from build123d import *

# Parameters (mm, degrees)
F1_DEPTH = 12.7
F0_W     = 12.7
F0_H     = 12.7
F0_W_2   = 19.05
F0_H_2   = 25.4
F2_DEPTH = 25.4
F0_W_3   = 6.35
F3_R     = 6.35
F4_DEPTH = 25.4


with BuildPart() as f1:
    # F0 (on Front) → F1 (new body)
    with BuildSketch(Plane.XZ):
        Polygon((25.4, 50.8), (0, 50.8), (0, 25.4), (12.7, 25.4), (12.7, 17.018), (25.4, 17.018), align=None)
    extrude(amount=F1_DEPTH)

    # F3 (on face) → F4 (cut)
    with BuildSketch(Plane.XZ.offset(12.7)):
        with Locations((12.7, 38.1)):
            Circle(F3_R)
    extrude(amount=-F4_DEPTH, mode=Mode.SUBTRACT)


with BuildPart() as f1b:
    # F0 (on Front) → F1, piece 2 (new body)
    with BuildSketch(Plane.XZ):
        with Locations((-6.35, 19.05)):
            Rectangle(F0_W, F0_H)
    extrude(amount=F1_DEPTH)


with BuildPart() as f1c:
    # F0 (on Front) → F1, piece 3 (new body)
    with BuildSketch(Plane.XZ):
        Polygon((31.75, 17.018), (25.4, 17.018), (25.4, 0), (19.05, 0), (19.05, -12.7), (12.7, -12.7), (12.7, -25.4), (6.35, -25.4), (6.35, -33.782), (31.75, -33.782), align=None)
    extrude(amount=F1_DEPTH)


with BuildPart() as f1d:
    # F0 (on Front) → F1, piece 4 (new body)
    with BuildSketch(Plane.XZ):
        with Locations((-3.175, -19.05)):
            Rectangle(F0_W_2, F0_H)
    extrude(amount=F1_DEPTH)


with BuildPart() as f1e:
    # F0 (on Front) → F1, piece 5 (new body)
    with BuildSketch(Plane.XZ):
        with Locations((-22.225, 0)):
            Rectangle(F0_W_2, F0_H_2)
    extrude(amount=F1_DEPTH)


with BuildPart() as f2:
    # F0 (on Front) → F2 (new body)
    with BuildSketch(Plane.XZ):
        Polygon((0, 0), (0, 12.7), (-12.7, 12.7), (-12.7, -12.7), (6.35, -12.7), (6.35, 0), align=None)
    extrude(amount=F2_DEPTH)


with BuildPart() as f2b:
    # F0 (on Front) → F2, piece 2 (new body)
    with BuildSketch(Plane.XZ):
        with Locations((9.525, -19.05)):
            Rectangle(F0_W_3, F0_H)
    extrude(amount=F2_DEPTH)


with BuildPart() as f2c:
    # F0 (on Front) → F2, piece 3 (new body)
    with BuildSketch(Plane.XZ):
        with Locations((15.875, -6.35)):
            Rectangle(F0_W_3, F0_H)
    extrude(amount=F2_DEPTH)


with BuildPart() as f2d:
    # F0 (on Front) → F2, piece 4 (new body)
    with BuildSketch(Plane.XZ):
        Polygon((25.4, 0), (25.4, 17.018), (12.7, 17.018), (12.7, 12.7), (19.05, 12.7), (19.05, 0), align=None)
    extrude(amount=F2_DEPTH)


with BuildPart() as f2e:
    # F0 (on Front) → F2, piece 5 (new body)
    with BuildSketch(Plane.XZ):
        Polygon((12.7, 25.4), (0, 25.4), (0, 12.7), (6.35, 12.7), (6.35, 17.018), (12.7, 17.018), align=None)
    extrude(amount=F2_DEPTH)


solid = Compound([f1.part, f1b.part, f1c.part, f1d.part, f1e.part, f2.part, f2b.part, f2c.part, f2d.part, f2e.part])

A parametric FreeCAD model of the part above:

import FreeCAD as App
import Part
import Sketcher

V = App.Vector
Q = App.Units.Quantity


def add_polygon(sketch, points):
    """Adds a closed chain of lines whose ends are joined by coincident constraints."""
    first, n = sketch.GeometryCount, len(points)
    for a, b in zip(points, points[1:] + points[:1]):
        sketch.addGeometry(Part.LineSegment(App.Vector(*a, 0), App.Vector(*b, 0)), False)
    for i in range(n):
        sketch.addConstraint(Sketcher.Constraint("Coincident", first + i, 2, first + (i + 1) % n, 1))

doc = App.newDocument("Part")
body = doc.addObject("PartDesign::Body", "Body")

# Sketch on XZ plane
sketch1 = body.newObject("Sketcher::SketchObject", "Sketch")
sketch1.AttachmentSupport = (doc.getObject("XZ_Plane"), [""])
sketch1.MapMode = "FlatFace"
add_polygon(sketch1, [(25, 51), (0, 51), (0, 25), (13, 25), (13, 17), (25, 17)])  # lines 0-5
sketch1.addConstraint(Sketcher.Constraint("Horizontal", 0))
sketch1.addConstraint(Sketcher.Constraint("Vertical", 1))
sketch1.addConstraint(Sketcher.Constraint("Horizontal", 2))
sketch1.addConstraint(Sketcher.Constraint("Vertical", 3))
sketch1.addConstraint(Sketcher.Constraint("Horizontal", 4))
sketch1.addConstraint(Sketcher.Constraint("Vertical", 5))
sketch1.addConstraint(Sketcher.Constraint("PointOnObject", 0, 2, -2))
sketch1.addConstraint(Sketcher.Constraint("Equal", 2, 4))
sketch1.addConstraint(Sketcher.Constraint("Equal", 0, 1))
sketch1.addConstraint(Sketcher.Constraint("DistanceX", 0, 2, 0, 1, Q("1 in")))
sketch1.addConstraint(Sketcher.Constraint("DistanceY", -1, 1, 0, 2, Q("2 in")))
sketch1.addConstraint(Sketcher.Constraint("DistanceY", 3, 2, 3, 1, Q("0.33 in")))
pad1 = body.newObject("PartDesign::Pad", "Pad")
pad1.Profile = sketch1
pad1.Length = Q("0.5 in")

# Sketch on XZ plane
sketch2 = body.newObject("Sketcher::SketchObject", "Sketch001")
sketch2.AttachmentSupport = (doc.getObject("XZ_Plane"), [""])
sketch2.MapMode = "FlatFace"
sketch2.AttachmentOffset = App.Placement(V(0, 0, 0.5 * 25.4), App.Rotation())
sketch2.addGeometry(Part.Circle(V(13, 38, 0), V(0, 0, 1), 6), False)
sketch2.addConstraint(Sketcher.Constraint("Diameter", 0, Q("0.5 in")))
sketch2.addConstraint(Sketcher.Constraint("DistanceX", -1, 1, 0, 3, Q("0.5 in")))
sketch2.addConstraint(Sketcher.Constraint("DistanceY", -1, 1, 0, 3, Q("1.5 in")))
pocket1 = body.newObject("PartDesign::Pocket", "Pocket")
pocket1.Profile = sketch2
pocket1.Length = Q("1 in")
body2 = doc.addObject("PartDesign::Body", "Body001")

# Sketch on XZ plane
sketch3 = body2.newObject("Sketcher::SketchObject", "Sketch002")
sketch3.AttachmentSupport = (doc.getObject("XZ_Plane001"), [""])
sketch3.MapMode = "FlatFace"
add_polygon(sketch3, [(-13, 25), (-13, 13), (0, 13), (0, 25)])  # lines 0-3
sketch3.addConstraint(Sketcher.Constraint("Vertical", 0))
sketch3.addConstraint(Sketcher.Constraint("Horizontal", 1))
sketch3.addConstraint(Sketcher.Constraint("Vertical", 2))
sketch3.addConstraint(Sketcher.Constraint("Horizontal", 3))
sketch3.addConstraint(Sketcher.Constraint("PointOnObject", 1, 2, -2))
sketch3.addConstraint(Sketcher.Constraint("Equal", 3, 0))
sketch3.addConstraint(Sketcher.Constraint("DistanceX", 1, 1, 1, 2, Q("0.5 in")))
sketch3.addConstraint(Sketcher.Constraint("DistanceY", -1, 1, 2, 2, Q("1 in")))
pad2 = body2.newObject("PartDesign::Pad", "Pad001")
pad2.Profile = sketch3
pad2.Length = Q("0.5 in")
body3 = doc.addObject("PartDesign::Body", "Body002")

# Sketch on XZ plane
sketch4 = body3.newObject("Sketcher::SketchObject", "Sketch003")
sketch4.AttachmentSupport = (doc.getObject("XZ_Plane002"), [""])
sketch4.MapMode = "FlatFace"
add_polygon(sketch4, [(32, 17), (25, 17), (25, 0), (19, 0), (19, -13), (13, -13), (13, -25), (6, -25), (6, -34), (32, -34)])  # lines 0-9
sketch4.addConstraint(Sketcher.Constraint("Horizontal", 0))
sketch4.addConstraint(Sketcher.Constraint("Vertical", 1))
sketch4.addConstraint(Sketcher.Constraint("Horizontal", 2))
sketch4.addConstraint(Sketcher.Constraint("Vertical", 3))
sketch4.addConstraint(Sketcher.Constraint("Horizontal", 4))
sketch4.addConstraint(Sketcher.Constraint("Vertical", 5))
sketch4.addConstraint(Sketcher.Constraint("Horizontal", 6))
sketch4.addConstraint(Sketcher.Constraint("Vertical", 7))
sketch4.addConstraint(Sketcher.Constraint("Horizontal", 8))
sketch4.addConstraint(Sketcher.Constraint("Vertical", 9))
sketch4.addConstraint(Sketcher.Constraint("PointOnObject", 1, 2, -1))
sketch4.addConstraint(Sketcher.Constraint("Equal", 0, 2))
sketch4.addConstraint(Sketcher.Constraint("Equal", 2, 4))
sketch4.addConstraint(Sketcher.Constraint("Equal", 4, 6))
sketch4.addConstraint(Sketcher.Constraint("Equal", 3, 5))
sketch4.addConstraint(Sketcher.Constraint("DistanceX", 8, 1, 8, 2, Q("1 in")))
sketch4.addConstraint(Sketcher.Constraint("DistanceY", 9, 1, 9, 2, Q("2 in")))
sketch4.addConstraint(Sketcher.Constraint("DistanceY", 3, 2, 3, 1, Q("0.5 in")))
sketch4.addConstraint(Sketcher.Constraint("DistanceX", -1, 1, 0, 2, Q("1 in")))
sketch4.addConstraint(Sketcher.Constraint("DistanceY", 1, 2, 1, 1, Q("0.67 in")))
pad3 = body3.newObject("PartDesign::Pad", "Pad002")
pad3.Profile = sketch4
pad3.Length = Q("0.5 in")
body4 = doc.addObject("PartDesign::Body", "Body003")

# Sketch on XZ plane
sketch5 = body4.newObject("Sketcher::SketchObject", "Sketch004")
sketch5.AttachmentSupport = (doc.getObject("XZ_Plane003"), [""])
sketch5.MapMode = "FlatFace"
add_polygon(sketch5, [(-13, -13), (-13, -25), (6, -25), (6, -13)])  # lines 0-3
sketch5.addConstraint(Sketcher.Constraint("Vertical", 0))
sketch5.addConstraint(Sketcher.Constraint("Horizontal", 1))
sketch5.addConstraint(Sketcher.Constraint("Vertical", 2))
sketch5.addConstraint(Sketcher.Constraint("Horizontal", 3))
sketch5.addConstraint(Sketcher.Constraint("DistanceY", 0, 2, 0, 1, Q("0.5 in")))
sketch5.addConstraint(Sketcher.Constraint("DistanceY", 0, 2, -1, 1, Q("1 in")))
sketch5.addConstraint(Sketcher.Constraint("DistanceX", 1, 1, 1, 2, Q("0.75 in")))
sketch5.addConstraint(Sketcher.Constraint("DistanceX", 0, 2, -1, 1, Q("0.5 in")))
pad4 = body4.newObject("PartDesign::Pad", "Pad003")
pad4.Profile = sketch5
pad4.Length = Q("0.5 in")
body5 = doc.addObject("PartDesign::Body", "Body004")

# Sketch on XZ plane
sketch6 = body5.newObject("Sketcher::SketchObject", "Sketch005")
sketch6.AttachmentSupport = (doc.getObject("XZ_Plane004"), [""])
sketch6.MapMode = "FlatFace"
add_polygon(sketch6, [(-32, 13), (-32, -13), (-13, -13), (-13, 13)])  # lines 0-3
sketch6.addConstraint(Sketcher.Constraint("Vertical", 0))
sketch6.addConstraint(Sketcher.Constraint("Horizontal", 1))
sketch6.addConstraint(Sketcher.Constraint("Vertical", 2))
sketch6.addConstraint(Sketcher.Constraint("Horizontal", 3))
sketch6.addConstraint(Sketcher.Constraint("DistanceY", 0, 2, 0, 1, Q("1 in")))
sketch6.addConstraint(Sketcher.Constraint("DistanceX", 1, 1, 1, 2, Q("0.75 in")))
sketch6.addConstraint(Sketcher.Constraint("DistanceY", 0, 2, -1, 1, Q("0.5 in")))
sketch6.addConstraint(Sketcher.Constraint("DistanceX", 1, 2, -1, 1, Q("0.5 in")))
pad5 = body5.newObject("PartDesign::Pad", "Pad004")
pad5.Profile = sketch6
pad5.Length = Q("0.5 in")
body6 = doc.addObject("PartDesign::Body", "Body005")

# Sketch on XZ plane
sketch7 = body6.newObject("Sketcher::SketchObject", "Sketch006")
sketch7.AttachmentSupport = (doc.getObject("XZ_Plane005"), [""])
sketch7.MapMode = "FlatFace"
add_polygon(sketch7, [(0, 0), (0, 13), (-13, 13), (-13, -13), (6, -13), (6, 0)])  # lines 0-5
sketch7.addConstraint(Sketcher.Constraint("Vertical", 0))
sketch7.addConstraint(Sketcher.Constraint("Horizontal", 1))
sketch7.addConstraint(Sketcher.Constraint("Vertical", 2))
sketch7.addConstraint(Sketcher.Constraint("Horizontal", 3))
sketch7.addConstraint(Sketcher.Constraint("Vertical", 4))
sketch7.addConstraint(Sketcher.Constraint("Horizontal", 5))
sketch7.addConstraint(Sketcher.Constraint("Coincident", 5, 2, -1, 1))
sketch7.addConstraint(Sketcher.Constraint("Equal", 1, 0))
sketch7.addConstraint(Sketcher.Constraint("Equal", 0, 4))
sketch7.addConstraint(Sketcher.Constraint("DistanceY", 2, 2, 2, 1, Q("1 in")))
sketch7.addConstraint(Sketcher.Constraint("DistanceX", 3, 1, 3, 2, Q("0.75 in")))
pad6 = body6.newObject("PartDesign::Pad", "Pad005")
pad6.Profile = sketch7
pad6.Length = Q("1 in")
body7 = doc.addObject("PartDesign::Body", "Body006")

# Sketch on XZ plane
sketch8 = body7.newObject("Sketcher::SketchObject", "Sketch007")
sketch8.AttachmentSupport = (doc.getObject("XZ_Plane006"), [""])
sketch8.MapMode = "FlatFace"
add_polygon(sketch8, [(6, -13), (6, -25), (13, -25), (13, -13)])  # lines 0-3
sketch8.addConstraint(Sketcher.Constraint("Vertical", 0))
sketch8.addConstraint(Sketcher.Constraint("Horizontal", 1))
sketch8.addConstraint(Sketcher.Constraint("Vertical", 2))
sketch8.addConstraint(Sketcher.Constraint("Horizontal", 3))
sketch8.addConstraint(Sketcher.Constraint("DistanceY", 0, 2, 0, 1, Q("0.5 in")))
sketch8.addConstraint(Sketcher.Constraint("DistanceY", 0, 2, -1, 1, Q("1 in")))
sketch8.addConstraint(Sketcher.Constraint("DistanceX", 1, 1, 1, 2, Q("0.25 in")))
sketch8.addConstraint(Sketcher.Constraint("DistanceX", -1, 1, 1, 2, Q("0.5 in")))
pad7 = body7.newObject("PartDesign::Pad", "Pad006")
pad7.Profile = sketch8
pad7.Length = Q("1 in")
body8 = doc.addObject("PartDesign::Body", "Body007")

# Sketch on XZ plane
sketch9 = body8.newObject("Sketcher::SketchObject", "Sketch008")
sketch9.AttachmentSupport = (doc.getObject("XZ_Plane007"), [""])
sketch9.MapMode = "FlatFace"
add_polygon(sketch9, [(13, 0), (13, -13), (19, -13), (19, 0)])  # lines 0-3
sketch9.addConstraint(Sketcher.Constraint("Vertical", 0))
sketch9.addConstraint(Sketcher.Constraint("Horizontal", 1))
sketch9.addConstraint(Sketcher.Constraint("Vertical", 2))
sketch9.addConstraint(Sketcher.Constraint("Horizontal", 3))
sketch9.addConstraint(Sketcher.Constraint("PointOnObject", 2, 2, -1))
sketch9.addConstraint(Sketcher.Constraint("DistanceY", 0, 2, 0, 1, Q("0.5 in")))
sketch9.addConstraint(Sketcher.Constraint("DistanceX", 1, 1, 1, 2, Q("0.25 in")))
sketch9.addConstraint(Sketcher.Constraint("DistanceX", -1, 1, 0, 2, Q("0.5 in")))
pad8 = body8.newObject("PartDesign::Pad", "Pad007")
pad8.Profile = sketch9
pad8.Length = Q("1 in")
body9 = doc.addObject("PartDesign::Body", "Body008")

# Sketch on XZ plane
sketch10 = body9.newObject("Sketcher::SketchObject", "Sketch009")
sketch10.AttachmentSupport = (doc.getObject("XZ_Plane008"), [""])
sketch10.MapMode = "FlatFace"
add_polygon(sketch10, [(25.4, 0), (25.4, 17), (12.7, 17), (12.7, 12.7), (19.1, 12.7), (19.1, 0)])  # lines 0-5
sketch10.addConstraint(Sketcher.Constraint("Vertical", 0))
sketch10.addConstraint(Sketcher.Constraint("Horizontal", 1))
sketch10.addConstraint(Sketcher.Constraint("Vertical", 2))
sketch10.addConstraint(Sketcher.Constraint("Horizontal", 3))
sketch10.addConstraint(Sketcher.Constraint("Vertical", 4))
sketch10.addConstraint(Sketcher.Constraint("Horizontal", 5))
sketch10.addConstraint(Sketcher.Constraint("PointOnObject", 4, 2, -1))
sketch10.addConstraint(Sketcher.Constraint("Equal", 3, 5))
sketch10.addConstraint(Sketcher.Constraint("Equal", 1, 4))
sketch10.addConstraint(Sketcher.Constraint("DistanceX", 1, 2, 1, 1, Q("0.5 in")))
sketch10.addConstraint(Sketcher.Constraint("DistanceX", -1, 1, 0, 2, Q("1 in")))
sketch10.addConstraint(Sketcher.Constraint("DistanceY", 0, 1, 0, 2, Q("0.67 in")))
pad9 = body9.newObject("PartDesign::Pad", "Pad008")
pad9.Profile = sketch10
pad9.Length = Q("1 in")
body10 = doc.addObject("PartDesign::Body", "Body009")

# Sketch on XZ plane
sketch11 = body10.newObject("Sketcher::SketchObject", "Sketch010")
sketch11.AttachmentSupport = (doc.getObject("XZ_Plane009"), [""])
sketch11.MapMode = "FlatFace"
add_polygon(sketch11, [(12.7, 25.4), (0, 25.4), (0, 12.7), (6.3, 12.7), (6.3, 17), (12.7, 17)])  # lines 0-5
sketch11.addConstraint(Sketcher.Constraint("Horizontal", 0))
sketch11.addConstraint(Sketcher.Constraint("Vertical", 1))
sketch11.addConstraint(Sketcher.Constraint("Horizontal", 2))
sketch11.addConstraint(Sketcher.Constraint("Vertical", 3))
sketch11.addConstraint(Sketcher.Constraint("Horizontal", 4))
sketch11.addConstraint(Sketcher.Constraint("Vertical", 5))
sketch11.addConstraint(Sketcher.Constraint("PointOnObject", 0, 2, -2))
sketch11.addConstraint(Sketcher.Constraint("Equal", 2, 4))
sketch11.addConstraint(Sketcher.Constraint("Equal", 0, 1))
sketch11.addConstraint(Sketcher.Constraint("DistanceX", 0, 2, 0, 1, Q("0.5 in")))
sketch11.addConstraint(Sketcher.Constraint("DistanceY", -1, 1, 0, 2, Q("1 in")))
sketch11.addConstraint(Sketcher.Constraint("DistanceY", 3, 1, 3, 2, Q("0.17 in")))
pad10 = body10.newObject("PartDesign::Pad", "Pad009")
pad10.Profile = sketch11
pad10.Length = Q("1 in")

doc.recompute()
